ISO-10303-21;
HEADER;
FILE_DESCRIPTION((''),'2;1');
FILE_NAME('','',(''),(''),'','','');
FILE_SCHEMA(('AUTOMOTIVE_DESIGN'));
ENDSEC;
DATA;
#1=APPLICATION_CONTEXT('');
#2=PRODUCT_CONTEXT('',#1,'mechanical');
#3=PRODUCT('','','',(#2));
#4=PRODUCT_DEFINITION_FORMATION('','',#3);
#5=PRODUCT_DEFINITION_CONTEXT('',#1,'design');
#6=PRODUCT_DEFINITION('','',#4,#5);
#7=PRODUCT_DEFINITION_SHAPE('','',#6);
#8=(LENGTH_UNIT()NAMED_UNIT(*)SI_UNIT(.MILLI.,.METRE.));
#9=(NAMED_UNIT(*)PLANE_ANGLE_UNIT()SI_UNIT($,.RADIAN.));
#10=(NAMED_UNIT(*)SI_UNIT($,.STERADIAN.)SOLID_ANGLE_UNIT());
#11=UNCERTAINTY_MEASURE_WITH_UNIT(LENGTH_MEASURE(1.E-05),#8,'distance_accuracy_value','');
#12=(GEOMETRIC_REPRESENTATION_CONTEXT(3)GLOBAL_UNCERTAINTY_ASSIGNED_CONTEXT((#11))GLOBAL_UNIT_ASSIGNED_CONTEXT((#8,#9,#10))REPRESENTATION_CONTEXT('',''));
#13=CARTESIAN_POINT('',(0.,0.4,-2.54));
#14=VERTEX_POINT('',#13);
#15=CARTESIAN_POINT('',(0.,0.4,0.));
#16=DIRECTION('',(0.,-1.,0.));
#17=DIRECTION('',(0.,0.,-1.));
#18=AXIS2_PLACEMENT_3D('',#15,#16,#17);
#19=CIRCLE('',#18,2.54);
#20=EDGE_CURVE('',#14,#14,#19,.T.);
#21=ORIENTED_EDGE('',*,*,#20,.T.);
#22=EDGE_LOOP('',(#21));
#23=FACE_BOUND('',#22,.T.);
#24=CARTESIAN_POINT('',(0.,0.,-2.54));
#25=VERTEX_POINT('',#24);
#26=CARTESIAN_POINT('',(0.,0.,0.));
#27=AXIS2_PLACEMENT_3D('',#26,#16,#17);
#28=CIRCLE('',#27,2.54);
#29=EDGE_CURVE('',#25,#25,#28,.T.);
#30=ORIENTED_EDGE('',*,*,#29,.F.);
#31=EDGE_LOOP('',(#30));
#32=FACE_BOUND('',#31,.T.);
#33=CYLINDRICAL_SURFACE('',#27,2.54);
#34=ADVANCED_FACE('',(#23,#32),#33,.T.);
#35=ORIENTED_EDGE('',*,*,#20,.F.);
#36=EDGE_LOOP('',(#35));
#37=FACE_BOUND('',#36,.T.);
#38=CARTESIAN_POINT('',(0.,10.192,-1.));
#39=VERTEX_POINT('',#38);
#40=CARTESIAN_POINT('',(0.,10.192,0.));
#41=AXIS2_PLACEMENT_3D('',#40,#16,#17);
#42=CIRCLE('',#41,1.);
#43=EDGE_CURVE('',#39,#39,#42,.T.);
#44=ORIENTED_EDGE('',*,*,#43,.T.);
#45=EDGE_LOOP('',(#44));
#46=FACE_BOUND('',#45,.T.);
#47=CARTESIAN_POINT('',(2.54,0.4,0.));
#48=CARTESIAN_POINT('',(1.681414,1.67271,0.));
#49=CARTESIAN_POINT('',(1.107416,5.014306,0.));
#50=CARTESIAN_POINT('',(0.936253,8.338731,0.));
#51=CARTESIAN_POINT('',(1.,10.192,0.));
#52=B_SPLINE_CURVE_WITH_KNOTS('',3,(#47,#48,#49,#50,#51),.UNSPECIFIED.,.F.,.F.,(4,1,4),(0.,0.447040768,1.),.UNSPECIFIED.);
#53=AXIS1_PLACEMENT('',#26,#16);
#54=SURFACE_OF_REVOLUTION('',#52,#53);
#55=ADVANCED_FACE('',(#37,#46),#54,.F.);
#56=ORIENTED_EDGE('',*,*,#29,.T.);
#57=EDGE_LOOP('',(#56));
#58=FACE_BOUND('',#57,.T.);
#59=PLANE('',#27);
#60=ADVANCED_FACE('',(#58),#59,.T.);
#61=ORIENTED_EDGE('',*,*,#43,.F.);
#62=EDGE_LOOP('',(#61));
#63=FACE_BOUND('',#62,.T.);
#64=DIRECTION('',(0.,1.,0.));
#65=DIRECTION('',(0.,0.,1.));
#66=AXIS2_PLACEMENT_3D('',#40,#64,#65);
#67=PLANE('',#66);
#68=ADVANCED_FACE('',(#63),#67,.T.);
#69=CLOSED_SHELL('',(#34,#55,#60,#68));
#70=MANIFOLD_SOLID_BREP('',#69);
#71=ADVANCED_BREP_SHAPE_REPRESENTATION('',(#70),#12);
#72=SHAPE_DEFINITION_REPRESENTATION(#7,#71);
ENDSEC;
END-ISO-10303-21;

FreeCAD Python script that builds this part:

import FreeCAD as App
import Part
import Sketcher
from FreeCAD import Vector

doc = App.newDocument("Part")
body = doc.addObject("PartDesign::Body", "Body")

sketch1 = body.newObject("Sketcher::SketchObject", "Sketch")
sketch1.AttachmentSupport = (doc.getObject("XY_Plane"), [""])
sketch1.MapMode = "FlatFace"
sketch1.addGeometry(Part.LineSegment(Vector(2.54, 0, 0), Vector(2.54, 0.4, 0)), False)
sketch1.addGeometry(Part.BSplineCurve([Vector(1, 10.192, 0), Vector(0.936253, 8.338731, 0), Vector(1.107416, 5.014306, 0), Vector(1.681414, 1.67271, 0), Vector(2.54, 0.4, 0)], [4, 1, 4], [0, 0.552959232, 1], False, 3, [1, 1, 1, 1, 1], False), False)
sketch1.addGeometry(Part.LineSegment(Vector(1, 10.192, 0), Vector(0, 10.192, 0)), False)
sketch1.addGeometry(Part.LineSegment(Vector(0, 10.192, 0), Vector(0, 0, 0)), False)
sketch1.addGeometry(Part.LineSegment(Vector(0, 0, 0), Vector(2.54, 0, 0)), False)
sketch1.addConstraint(Sketcher.Constraint("Block", 1))
sketch1.addConstraint(Sketcher.Constraint("Coincident", 0, 2, 1, 2))
sketch1.addConstraint(Sketcher.Constraint("Coincident", 1, 1, 2, 1))
sketch1.addConstraint(Sketcher.Constraint("Coincident", 2, 2, 3, 1))
sketch1.addConstraint(Sketcher.Constraint("Coincident", 3, 2, 4, 1))
sketch1.addConstraint(Sketcher.Constraint("Coincident", 4, 2, 0, 1))
sketch1.addConstraint(Sketcher.Constraint("Vertical", 0))
sketch1.addConstraint(Sketcher.Constraint("Horizontal", 2))
sketch1.addConstraint(Sketcher.Constraint("Vertical", 3))
sketch1.addConstraint(Sketcher.Constraint("Horizontal", 4))
sketch1.addConstraint(Sketcher.Constraint("Coincident", 3, 2, -1, 1))
revolution = body.newObject("PartDesign::Revolution", "Revolution")
revolution.Profile = sketch1
revolution.ReferenceAxis = (sketch1, ["V_Axis"])
revolution.Angle = 360

doc.recompute()
